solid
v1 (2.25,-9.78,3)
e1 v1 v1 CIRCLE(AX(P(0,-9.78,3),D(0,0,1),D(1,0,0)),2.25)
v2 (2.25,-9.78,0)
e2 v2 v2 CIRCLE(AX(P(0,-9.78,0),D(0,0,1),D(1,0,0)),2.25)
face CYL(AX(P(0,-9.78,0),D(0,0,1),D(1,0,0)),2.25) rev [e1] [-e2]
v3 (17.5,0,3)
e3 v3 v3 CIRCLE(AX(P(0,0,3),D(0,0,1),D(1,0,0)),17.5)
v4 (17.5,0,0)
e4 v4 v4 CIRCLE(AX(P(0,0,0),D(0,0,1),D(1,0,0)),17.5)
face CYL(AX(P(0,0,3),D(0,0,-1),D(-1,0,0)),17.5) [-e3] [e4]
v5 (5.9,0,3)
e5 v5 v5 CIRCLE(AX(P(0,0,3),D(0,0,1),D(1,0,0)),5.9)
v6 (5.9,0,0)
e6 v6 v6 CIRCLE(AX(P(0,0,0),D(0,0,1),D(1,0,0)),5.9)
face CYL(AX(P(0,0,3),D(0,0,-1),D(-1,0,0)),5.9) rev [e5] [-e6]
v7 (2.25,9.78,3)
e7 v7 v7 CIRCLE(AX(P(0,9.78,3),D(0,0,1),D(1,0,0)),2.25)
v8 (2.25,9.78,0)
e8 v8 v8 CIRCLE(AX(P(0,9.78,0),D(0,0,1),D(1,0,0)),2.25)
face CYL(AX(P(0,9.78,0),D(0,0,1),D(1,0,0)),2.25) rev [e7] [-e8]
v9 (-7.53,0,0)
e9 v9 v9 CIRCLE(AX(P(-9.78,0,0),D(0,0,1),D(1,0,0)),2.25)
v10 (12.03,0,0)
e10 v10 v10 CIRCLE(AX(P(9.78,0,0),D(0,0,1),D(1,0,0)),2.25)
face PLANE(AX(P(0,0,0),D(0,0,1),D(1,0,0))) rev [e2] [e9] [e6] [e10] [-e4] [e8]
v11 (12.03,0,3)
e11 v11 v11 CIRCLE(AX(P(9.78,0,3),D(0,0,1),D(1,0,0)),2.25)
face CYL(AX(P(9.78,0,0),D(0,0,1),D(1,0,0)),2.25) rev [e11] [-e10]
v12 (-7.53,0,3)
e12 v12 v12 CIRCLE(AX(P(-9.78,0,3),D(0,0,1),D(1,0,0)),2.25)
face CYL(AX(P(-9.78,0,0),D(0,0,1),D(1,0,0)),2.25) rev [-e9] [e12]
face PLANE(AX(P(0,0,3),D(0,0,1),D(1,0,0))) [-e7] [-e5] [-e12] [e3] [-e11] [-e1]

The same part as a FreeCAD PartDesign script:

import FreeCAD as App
import Part
import Sketcher
from FreeCAD import Vector

doc = App.newDocument("Part")
body = doc.addObject("PartDesign::Body", "Body")

# Sketch on XY plane
sketch1 = doc.addObject("Sketcher::SketchObject", "Sketch")
body.addObject(sketch1)
sketch1.AttachmentSupport = (doc.XY_Plane, [""])
sketch1.MapMode = "FlatFace"
sketch1.addGeometry(Part.Circle(Vector(0, 0, 0), Vector(0, 0, 1), 18), False)
sketch1.addGeometry(Part.Circle(Vector(0, 0, 0), Vector(0, 0, 1), 6), False)
sketch1.addConstraint(Sketcher.Constraint("Coincident", 0, 3, -1, 1))
sketch1.addConstraint(Sketcher.Constraint("Coincident", 1, 3, -1, 1))
sketch1.addConstraint(Sketcher.Constraint("Diameter", 0, 35.0))
sketch1.addConstraint(Sketcher.Constraint("Diameter", 1, 11.8))
pad1 = doc.addObject("PartDesign::Pad", "Pad")
body.addObject(pad1)
pad1.Profile = sketch1
pad1.Length = 3

# Sketch on XY plane
sketch2 = doc.addObject("Sketcher::SketchObject", "Sketch001")
body.addObject(sketch2)
sketch2.AttachmentSupport = (doc.XY_Plane, [""])
sketch2.MapMode = "FlatFace"
sketch2.AttachmentOffset = App.Placement(Vector(0, 0, 3), App.Rotation())
sketch2.addGeometry(Part.Circle(Vector(0, 9.8, 0), Vector(0, 0, 1), 2.2), False)
sketch2.addGeometry(Part.Circle(Vector(9.8, 0, 0), Vector(0, 0, 1), 2.2), False)
sketch2.addGeometry(Part.Circle(Vector(0, -9.8, 0), Vector(0, 0, 1), 2.2), False)
sketch2.addGeometry(Part.Circle(Vector(-9.8, 0, 0), Vector(0, 0, 1), 2.2), False)
sketch2.addConstraint(Sketcher.Constraint("Equal", 0, 1))
sketch2.addConstraint(Sketcher.Constraint("Equal", 1, 2))
sketch2.addConstraint(Sketcher.Constraint("Equal", 2, 3))
sketch2.addConstraint(Sketcher.Constraint("Symmetric", 0, 3, 2, 3, -1, 1))
sketch2.addConstraint(Sketcher.Constraint("Symmetric", 1, 3, 3, 3, -1, 1))
sketch2.addConstraint(Sketcher.Constraint("PointOnObject", 0, 3, -2))
sketch2.addConstraint(Sketcher.Constraint("PointOnObject", 1, 3, -1))
sketch2.addConstraint(Sketcher.Constraint("Diameter", 0, 4.5))
sketch2.addConstraint(Sketcher.Constraint("DistanceY", -1, 1, 0, 3, 9.78))
sketch2.addConstraint(Sketcher.Constraint("DistanceX", -1, 1, 1, 3, 9.78))
pocket1 = doc.addObject("PartDesign::Pocket", "Pocket")
body.addObject(pocket1)
pocket1.Profile = sketch2
pocket1.Length = 3

doc.recompute()
